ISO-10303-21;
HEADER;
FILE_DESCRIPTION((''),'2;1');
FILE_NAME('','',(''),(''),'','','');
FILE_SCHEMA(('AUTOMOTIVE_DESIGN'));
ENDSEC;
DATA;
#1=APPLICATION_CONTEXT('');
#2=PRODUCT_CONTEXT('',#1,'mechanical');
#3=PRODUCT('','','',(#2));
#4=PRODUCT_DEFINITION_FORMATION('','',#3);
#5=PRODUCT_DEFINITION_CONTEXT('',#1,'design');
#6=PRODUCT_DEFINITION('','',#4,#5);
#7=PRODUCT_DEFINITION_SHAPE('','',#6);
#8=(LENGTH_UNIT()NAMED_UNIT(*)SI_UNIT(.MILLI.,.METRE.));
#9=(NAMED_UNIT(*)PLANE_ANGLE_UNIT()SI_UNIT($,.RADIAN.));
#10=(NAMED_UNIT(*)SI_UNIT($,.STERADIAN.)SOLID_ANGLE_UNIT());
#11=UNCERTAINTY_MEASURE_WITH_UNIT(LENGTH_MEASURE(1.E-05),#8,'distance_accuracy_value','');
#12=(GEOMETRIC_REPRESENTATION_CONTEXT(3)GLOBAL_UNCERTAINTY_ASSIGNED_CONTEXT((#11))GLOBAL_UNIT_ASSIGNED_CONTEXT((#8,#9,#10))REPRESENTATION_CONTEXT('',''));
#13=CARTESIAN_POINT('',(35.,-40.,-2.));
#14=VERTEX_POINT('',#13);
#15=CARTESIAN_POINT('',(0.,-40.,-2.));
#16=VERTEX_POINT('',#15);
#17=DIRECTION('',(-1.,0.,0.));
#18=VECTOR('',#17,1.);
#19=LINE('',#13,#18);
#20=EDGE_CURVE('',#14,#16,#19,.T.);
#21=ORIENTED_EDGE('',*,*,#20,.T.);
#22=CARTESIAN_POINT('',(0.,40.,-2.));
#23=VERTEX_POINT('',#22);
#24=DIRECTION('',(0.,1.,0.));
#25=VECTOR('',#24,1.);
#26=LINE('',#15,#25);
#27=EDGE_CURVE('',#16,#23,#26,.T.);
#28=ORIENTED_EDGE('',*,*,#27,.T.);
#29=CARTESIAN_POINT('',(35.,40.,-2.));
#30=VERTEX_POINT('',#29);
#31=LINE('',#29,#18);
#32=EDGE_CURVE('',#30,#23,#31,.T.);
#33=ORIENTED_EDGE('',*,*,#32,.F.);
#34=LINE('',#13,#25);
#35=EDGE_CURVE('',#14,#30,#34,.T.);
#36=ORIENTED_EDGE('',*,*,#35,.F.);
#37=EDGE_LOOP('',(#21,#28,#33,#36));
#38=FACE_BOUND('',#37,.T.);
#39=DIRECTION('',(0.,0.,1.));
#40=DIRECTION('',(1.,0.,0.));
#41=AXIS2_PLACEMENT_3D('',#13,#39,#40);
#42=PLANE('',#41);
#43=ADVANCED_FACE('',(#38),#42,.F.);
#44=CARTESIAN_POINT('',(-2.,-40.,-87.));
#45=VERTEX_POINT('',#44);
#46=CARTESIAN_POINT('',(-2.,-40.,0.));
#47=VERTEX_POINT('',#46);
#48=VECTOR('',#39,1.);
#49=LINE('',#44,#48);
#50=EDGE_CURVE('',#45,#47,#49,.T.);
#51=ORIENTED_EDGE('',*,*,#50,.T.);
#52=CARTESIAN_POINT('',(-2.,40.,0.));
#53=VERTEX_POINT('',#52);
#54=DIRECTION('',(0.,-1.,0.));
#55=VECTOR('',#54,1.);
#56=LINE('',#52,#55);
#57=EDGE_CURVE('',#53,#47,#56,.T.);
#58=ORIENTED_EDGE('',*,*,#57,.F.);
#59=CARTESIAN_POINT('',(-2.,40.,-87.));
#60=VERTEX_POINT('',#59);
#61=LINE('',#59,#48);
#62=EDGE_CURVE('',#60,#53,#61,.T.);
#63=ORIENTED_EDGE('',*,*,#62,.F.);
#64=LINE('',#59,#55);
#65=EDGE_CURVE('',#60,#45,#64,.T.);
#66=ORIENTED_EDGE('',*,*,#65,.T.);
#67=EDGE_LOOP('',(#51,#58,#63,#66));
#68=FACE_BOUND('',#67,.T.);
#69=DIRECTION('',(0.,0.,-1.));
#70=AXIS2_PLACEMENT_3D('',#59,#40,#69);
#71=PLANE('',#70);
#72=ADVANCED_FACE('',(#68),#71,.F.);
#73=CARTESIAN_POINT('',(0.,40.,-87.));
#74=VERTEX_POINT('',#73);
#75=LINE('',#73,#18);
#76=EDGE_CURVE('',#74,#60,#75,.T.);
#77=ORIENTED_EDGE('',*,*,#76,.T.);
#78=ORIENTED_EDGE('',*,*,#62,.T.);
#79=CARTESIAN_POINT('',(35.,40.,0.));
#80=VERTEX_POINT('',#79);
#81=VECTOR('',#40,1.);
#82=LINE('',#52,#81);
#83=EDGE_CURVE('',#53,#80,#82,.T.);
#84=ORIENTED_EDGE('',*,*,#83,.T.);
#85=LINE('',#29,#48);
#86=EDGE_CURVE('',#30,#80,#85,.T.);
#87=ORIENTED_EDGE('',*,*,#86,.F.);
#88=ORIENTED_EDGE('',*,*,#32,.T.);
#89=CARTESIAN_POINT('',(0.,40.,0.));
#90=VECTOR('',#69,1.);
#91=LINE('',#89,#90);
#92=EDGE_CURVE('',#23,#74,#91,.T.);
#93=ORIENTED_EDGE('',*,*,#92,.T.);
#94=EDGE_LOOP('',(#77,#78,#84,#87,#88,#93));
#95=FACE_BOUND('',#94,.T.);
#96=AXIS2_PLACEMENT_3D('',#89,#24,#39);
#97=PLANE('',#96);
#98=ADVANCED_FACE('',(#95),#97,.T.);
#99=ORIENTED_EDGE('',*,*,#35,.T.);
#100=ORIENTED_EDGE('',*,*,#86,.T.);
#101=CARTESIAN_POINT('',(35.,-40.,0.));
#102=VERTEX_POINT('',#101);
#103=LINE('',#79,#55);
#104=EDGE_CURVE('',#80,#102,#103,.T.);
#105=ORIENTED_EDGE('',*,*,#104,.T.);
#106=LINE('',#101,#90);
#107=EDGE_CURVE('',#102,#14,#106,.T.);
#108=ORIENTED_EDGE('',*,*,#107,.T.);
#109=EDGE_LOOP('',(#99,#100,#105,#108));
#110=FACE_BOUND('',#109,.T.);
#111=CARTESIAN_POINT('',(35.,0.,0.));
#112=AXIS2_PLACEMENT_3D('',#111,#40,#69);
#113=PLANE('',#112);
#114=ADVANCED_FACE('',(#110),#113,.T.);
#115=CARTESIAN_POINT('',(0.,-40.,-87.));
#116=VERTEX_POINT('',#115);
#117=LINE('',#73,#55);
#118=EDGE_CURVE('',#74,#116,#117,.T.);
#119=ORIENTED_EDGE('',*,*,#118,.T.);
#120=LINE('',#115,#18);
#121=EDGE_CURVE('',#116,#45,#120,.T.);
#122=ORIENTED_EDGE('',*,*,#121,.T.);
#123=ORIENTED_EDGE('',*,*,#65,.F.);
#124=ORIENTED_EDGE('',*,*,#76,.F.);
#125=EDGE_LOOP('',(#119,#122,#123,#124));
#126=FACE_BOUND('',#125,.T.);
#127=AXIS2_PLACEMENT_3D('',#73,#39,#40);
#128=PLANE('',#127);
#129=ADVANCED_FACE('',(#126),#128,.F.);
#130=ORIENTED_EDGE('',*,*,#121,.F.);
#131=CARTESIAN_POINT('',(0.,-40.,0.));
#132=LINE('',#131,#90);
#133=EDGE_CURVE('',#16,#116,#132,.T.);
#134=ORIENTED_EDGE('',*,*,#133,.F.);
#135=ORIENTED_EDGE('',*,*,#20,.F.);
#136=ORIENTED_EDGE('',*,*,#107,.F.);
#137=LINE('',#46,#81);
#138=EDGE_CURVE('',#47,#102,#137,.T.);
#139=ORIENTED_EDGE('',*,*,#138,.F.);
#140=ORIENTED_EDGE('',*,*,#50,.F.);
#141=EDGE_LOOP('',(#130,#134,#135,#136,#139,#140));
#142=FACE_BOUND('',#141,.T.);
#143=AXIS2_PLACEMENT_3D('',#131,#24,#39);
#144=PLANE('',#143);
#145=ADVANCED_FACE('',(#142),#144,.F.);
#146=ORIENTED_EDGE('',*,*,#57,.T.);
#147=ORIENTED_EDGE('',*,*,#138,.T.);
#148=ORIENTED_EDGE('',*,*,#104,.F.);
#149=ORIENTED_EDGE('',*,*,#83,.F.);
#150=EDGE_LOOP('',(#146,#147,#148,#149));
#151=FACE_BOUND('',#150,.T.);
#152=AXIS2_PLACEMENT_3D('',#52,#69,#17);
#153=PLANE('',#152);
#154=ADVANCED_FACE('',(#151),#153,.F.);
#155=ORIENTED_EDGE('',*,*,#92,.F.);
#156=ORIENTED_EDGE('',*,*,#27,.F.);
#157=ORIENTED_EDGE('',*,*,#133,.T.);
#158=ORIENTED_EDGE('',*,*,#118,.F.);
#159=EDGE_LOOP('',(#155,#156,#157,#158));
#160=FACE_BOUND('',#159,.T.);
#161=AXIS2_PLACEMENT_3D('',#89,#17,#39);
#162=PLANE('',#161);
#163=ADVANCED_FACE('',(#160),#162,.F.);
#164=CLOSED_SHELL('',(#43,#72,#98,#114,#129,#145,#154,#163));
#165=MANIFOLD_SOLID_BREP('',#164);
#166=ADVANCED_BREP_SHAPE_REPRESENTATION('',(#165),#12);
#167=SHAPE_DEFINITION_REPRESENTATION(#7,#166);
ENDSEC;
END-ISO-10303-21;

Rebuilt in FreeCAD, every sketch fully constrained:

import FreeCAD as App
import Part
import Sketcher
Q = App.Units.Quantity

doc = App.newDocument("Part")
body = doc.addObject("PartDesign::Body", "Body")

sketch1 = body.newObject("Sketcher::SketchObject", "Sketch")
sketch1.AttachmentSupport = (doc.getObject("XZ_Plane"), [""])
sketch1.MapMode = "FlatFace"
sketch1.addGeometry(Part.LineSegment(App.Vector(-2, -87, 0), App.Vector(-2, 0, 0)), False)
sketch1.addGeometry(Part.LineSegment(App.Vector(-2, 0, 0), App.Vector(0, 0, 0)), False)
sketch1.addGeometry(Part.LineSegment(App.Vector(0, 0, 0), App.Vector(0, -87, 0)), False)
sketch1.addGeometry(Part.LineSegment(App.Vector(0, -87, 0), App.Vector(-2, -87, 0)), False)
sketch1.addConstraint(Sketcher.Constraint("Coincident", 0, 2, 1, 1))
sketch1.addConstraint(Sketcher.Constraint("Coincident", 1, 2, 2, 1))
sketch1.addConstraint(Sketcher.Constraint("Coincident", 2, 2, 3, 1))
sketch1.addConstraint(Sketcher.Constraint("Coincident", 3, 2, 0, 1))
sketch1.addConstraint(Sketcher.Constraint("Vertical", 0))
sketch1.addConstraint(Sketcher.Constraint("Horizontal", 1))
sketch1.addConstraint(Sketcher.Constraint("Vertical", 2))
sketch1.addConstraint(Sketcher.Constraint("Horizontal", 3))
sketch1.addConstraint(Sketcher.Constraint("Coincident", 1, 2, -1, 1))
sketch1.addConstraint(Sketcher.Constraint("DistanceX", 1, 1, 1, 2, Q("2 mm")))
sketch1.addConstraint(Sketcher.Constraint("DistanceY", 0, 1, 0, 2, Q("87 mm")))
pad1 = body.newObject("PartDesign::Pad", "Pad")
pad1.Profile = sketch1
pad1.Length = 80
pad1.Midplane = True

sketch2 = body.newObject("Sketcher::SketchObject", "Sketch001")
sketch2.AttachmentSupport = (doc.getObject("YZ_Plane"), [""])
sketch2.MapMode = "FlatFace"
sketch2.addGeometry(Part.LineSegment(App.Vector(40, 0, 0), App.Vector(-40, 0, 0)), False)
sketch2.addGeometry(Part.LineSegment(App.Vector(-40, 0, 0), App.Vector(-40, -2, 0)), False)
sketch2.addGeometry(Part.LineSegment(App.Vector(-40, -2, 0), App.Vector(40, -2, 0)), False)
sketch2.addGeometry(Part.LineSegment(App.Vector(40, -2, 0), App.Vector(40, 0, 0)), False)
sketch2.addConstraint(Sketcher.Constraint("Coincident", 0, 2, 1, 1))
sketch2.addConstraint(Sketcher.Constraint("Coincident", 1, 2, 2, 1))
sketch2.addConstraint(Sketcher.Constraint("Coincident", 2, 2, 3, 1))
sketch2.addConstraint(Sketcher.Constraint("Coincident", 3, 2, 0, 1))
sketch2.addConstraint(Sketcher.Constraint("Horizontal", 0))
sketch2.addConstraint(Sketcher.Constraint("Vertical", 1))
sketch2.addConstraint(Sketcher.Constraint("Horizontal", 2))
sketch2.addConstraint(Sketcher.Constraint("Vertical", 3))
sketch2.addConstraint(Sketcher.Constraint("Symmetric", 0, 2, 3, 2, -1, 1))
sketch2.addConstraint(Sketcher.Constraint("DistanceX", 0, 2, 0, 1, Q("80 mm")))
sketch2.addConstraint(Sketcher.Constraint("DistanceY", 1, 2, 1, 1, Q("2 mm")))
pad2 = body.newObject("PartDesign::Pad", "Pad001")
pad2.Profile = sketch2
pad2.Length = 35

doc.recompute()
